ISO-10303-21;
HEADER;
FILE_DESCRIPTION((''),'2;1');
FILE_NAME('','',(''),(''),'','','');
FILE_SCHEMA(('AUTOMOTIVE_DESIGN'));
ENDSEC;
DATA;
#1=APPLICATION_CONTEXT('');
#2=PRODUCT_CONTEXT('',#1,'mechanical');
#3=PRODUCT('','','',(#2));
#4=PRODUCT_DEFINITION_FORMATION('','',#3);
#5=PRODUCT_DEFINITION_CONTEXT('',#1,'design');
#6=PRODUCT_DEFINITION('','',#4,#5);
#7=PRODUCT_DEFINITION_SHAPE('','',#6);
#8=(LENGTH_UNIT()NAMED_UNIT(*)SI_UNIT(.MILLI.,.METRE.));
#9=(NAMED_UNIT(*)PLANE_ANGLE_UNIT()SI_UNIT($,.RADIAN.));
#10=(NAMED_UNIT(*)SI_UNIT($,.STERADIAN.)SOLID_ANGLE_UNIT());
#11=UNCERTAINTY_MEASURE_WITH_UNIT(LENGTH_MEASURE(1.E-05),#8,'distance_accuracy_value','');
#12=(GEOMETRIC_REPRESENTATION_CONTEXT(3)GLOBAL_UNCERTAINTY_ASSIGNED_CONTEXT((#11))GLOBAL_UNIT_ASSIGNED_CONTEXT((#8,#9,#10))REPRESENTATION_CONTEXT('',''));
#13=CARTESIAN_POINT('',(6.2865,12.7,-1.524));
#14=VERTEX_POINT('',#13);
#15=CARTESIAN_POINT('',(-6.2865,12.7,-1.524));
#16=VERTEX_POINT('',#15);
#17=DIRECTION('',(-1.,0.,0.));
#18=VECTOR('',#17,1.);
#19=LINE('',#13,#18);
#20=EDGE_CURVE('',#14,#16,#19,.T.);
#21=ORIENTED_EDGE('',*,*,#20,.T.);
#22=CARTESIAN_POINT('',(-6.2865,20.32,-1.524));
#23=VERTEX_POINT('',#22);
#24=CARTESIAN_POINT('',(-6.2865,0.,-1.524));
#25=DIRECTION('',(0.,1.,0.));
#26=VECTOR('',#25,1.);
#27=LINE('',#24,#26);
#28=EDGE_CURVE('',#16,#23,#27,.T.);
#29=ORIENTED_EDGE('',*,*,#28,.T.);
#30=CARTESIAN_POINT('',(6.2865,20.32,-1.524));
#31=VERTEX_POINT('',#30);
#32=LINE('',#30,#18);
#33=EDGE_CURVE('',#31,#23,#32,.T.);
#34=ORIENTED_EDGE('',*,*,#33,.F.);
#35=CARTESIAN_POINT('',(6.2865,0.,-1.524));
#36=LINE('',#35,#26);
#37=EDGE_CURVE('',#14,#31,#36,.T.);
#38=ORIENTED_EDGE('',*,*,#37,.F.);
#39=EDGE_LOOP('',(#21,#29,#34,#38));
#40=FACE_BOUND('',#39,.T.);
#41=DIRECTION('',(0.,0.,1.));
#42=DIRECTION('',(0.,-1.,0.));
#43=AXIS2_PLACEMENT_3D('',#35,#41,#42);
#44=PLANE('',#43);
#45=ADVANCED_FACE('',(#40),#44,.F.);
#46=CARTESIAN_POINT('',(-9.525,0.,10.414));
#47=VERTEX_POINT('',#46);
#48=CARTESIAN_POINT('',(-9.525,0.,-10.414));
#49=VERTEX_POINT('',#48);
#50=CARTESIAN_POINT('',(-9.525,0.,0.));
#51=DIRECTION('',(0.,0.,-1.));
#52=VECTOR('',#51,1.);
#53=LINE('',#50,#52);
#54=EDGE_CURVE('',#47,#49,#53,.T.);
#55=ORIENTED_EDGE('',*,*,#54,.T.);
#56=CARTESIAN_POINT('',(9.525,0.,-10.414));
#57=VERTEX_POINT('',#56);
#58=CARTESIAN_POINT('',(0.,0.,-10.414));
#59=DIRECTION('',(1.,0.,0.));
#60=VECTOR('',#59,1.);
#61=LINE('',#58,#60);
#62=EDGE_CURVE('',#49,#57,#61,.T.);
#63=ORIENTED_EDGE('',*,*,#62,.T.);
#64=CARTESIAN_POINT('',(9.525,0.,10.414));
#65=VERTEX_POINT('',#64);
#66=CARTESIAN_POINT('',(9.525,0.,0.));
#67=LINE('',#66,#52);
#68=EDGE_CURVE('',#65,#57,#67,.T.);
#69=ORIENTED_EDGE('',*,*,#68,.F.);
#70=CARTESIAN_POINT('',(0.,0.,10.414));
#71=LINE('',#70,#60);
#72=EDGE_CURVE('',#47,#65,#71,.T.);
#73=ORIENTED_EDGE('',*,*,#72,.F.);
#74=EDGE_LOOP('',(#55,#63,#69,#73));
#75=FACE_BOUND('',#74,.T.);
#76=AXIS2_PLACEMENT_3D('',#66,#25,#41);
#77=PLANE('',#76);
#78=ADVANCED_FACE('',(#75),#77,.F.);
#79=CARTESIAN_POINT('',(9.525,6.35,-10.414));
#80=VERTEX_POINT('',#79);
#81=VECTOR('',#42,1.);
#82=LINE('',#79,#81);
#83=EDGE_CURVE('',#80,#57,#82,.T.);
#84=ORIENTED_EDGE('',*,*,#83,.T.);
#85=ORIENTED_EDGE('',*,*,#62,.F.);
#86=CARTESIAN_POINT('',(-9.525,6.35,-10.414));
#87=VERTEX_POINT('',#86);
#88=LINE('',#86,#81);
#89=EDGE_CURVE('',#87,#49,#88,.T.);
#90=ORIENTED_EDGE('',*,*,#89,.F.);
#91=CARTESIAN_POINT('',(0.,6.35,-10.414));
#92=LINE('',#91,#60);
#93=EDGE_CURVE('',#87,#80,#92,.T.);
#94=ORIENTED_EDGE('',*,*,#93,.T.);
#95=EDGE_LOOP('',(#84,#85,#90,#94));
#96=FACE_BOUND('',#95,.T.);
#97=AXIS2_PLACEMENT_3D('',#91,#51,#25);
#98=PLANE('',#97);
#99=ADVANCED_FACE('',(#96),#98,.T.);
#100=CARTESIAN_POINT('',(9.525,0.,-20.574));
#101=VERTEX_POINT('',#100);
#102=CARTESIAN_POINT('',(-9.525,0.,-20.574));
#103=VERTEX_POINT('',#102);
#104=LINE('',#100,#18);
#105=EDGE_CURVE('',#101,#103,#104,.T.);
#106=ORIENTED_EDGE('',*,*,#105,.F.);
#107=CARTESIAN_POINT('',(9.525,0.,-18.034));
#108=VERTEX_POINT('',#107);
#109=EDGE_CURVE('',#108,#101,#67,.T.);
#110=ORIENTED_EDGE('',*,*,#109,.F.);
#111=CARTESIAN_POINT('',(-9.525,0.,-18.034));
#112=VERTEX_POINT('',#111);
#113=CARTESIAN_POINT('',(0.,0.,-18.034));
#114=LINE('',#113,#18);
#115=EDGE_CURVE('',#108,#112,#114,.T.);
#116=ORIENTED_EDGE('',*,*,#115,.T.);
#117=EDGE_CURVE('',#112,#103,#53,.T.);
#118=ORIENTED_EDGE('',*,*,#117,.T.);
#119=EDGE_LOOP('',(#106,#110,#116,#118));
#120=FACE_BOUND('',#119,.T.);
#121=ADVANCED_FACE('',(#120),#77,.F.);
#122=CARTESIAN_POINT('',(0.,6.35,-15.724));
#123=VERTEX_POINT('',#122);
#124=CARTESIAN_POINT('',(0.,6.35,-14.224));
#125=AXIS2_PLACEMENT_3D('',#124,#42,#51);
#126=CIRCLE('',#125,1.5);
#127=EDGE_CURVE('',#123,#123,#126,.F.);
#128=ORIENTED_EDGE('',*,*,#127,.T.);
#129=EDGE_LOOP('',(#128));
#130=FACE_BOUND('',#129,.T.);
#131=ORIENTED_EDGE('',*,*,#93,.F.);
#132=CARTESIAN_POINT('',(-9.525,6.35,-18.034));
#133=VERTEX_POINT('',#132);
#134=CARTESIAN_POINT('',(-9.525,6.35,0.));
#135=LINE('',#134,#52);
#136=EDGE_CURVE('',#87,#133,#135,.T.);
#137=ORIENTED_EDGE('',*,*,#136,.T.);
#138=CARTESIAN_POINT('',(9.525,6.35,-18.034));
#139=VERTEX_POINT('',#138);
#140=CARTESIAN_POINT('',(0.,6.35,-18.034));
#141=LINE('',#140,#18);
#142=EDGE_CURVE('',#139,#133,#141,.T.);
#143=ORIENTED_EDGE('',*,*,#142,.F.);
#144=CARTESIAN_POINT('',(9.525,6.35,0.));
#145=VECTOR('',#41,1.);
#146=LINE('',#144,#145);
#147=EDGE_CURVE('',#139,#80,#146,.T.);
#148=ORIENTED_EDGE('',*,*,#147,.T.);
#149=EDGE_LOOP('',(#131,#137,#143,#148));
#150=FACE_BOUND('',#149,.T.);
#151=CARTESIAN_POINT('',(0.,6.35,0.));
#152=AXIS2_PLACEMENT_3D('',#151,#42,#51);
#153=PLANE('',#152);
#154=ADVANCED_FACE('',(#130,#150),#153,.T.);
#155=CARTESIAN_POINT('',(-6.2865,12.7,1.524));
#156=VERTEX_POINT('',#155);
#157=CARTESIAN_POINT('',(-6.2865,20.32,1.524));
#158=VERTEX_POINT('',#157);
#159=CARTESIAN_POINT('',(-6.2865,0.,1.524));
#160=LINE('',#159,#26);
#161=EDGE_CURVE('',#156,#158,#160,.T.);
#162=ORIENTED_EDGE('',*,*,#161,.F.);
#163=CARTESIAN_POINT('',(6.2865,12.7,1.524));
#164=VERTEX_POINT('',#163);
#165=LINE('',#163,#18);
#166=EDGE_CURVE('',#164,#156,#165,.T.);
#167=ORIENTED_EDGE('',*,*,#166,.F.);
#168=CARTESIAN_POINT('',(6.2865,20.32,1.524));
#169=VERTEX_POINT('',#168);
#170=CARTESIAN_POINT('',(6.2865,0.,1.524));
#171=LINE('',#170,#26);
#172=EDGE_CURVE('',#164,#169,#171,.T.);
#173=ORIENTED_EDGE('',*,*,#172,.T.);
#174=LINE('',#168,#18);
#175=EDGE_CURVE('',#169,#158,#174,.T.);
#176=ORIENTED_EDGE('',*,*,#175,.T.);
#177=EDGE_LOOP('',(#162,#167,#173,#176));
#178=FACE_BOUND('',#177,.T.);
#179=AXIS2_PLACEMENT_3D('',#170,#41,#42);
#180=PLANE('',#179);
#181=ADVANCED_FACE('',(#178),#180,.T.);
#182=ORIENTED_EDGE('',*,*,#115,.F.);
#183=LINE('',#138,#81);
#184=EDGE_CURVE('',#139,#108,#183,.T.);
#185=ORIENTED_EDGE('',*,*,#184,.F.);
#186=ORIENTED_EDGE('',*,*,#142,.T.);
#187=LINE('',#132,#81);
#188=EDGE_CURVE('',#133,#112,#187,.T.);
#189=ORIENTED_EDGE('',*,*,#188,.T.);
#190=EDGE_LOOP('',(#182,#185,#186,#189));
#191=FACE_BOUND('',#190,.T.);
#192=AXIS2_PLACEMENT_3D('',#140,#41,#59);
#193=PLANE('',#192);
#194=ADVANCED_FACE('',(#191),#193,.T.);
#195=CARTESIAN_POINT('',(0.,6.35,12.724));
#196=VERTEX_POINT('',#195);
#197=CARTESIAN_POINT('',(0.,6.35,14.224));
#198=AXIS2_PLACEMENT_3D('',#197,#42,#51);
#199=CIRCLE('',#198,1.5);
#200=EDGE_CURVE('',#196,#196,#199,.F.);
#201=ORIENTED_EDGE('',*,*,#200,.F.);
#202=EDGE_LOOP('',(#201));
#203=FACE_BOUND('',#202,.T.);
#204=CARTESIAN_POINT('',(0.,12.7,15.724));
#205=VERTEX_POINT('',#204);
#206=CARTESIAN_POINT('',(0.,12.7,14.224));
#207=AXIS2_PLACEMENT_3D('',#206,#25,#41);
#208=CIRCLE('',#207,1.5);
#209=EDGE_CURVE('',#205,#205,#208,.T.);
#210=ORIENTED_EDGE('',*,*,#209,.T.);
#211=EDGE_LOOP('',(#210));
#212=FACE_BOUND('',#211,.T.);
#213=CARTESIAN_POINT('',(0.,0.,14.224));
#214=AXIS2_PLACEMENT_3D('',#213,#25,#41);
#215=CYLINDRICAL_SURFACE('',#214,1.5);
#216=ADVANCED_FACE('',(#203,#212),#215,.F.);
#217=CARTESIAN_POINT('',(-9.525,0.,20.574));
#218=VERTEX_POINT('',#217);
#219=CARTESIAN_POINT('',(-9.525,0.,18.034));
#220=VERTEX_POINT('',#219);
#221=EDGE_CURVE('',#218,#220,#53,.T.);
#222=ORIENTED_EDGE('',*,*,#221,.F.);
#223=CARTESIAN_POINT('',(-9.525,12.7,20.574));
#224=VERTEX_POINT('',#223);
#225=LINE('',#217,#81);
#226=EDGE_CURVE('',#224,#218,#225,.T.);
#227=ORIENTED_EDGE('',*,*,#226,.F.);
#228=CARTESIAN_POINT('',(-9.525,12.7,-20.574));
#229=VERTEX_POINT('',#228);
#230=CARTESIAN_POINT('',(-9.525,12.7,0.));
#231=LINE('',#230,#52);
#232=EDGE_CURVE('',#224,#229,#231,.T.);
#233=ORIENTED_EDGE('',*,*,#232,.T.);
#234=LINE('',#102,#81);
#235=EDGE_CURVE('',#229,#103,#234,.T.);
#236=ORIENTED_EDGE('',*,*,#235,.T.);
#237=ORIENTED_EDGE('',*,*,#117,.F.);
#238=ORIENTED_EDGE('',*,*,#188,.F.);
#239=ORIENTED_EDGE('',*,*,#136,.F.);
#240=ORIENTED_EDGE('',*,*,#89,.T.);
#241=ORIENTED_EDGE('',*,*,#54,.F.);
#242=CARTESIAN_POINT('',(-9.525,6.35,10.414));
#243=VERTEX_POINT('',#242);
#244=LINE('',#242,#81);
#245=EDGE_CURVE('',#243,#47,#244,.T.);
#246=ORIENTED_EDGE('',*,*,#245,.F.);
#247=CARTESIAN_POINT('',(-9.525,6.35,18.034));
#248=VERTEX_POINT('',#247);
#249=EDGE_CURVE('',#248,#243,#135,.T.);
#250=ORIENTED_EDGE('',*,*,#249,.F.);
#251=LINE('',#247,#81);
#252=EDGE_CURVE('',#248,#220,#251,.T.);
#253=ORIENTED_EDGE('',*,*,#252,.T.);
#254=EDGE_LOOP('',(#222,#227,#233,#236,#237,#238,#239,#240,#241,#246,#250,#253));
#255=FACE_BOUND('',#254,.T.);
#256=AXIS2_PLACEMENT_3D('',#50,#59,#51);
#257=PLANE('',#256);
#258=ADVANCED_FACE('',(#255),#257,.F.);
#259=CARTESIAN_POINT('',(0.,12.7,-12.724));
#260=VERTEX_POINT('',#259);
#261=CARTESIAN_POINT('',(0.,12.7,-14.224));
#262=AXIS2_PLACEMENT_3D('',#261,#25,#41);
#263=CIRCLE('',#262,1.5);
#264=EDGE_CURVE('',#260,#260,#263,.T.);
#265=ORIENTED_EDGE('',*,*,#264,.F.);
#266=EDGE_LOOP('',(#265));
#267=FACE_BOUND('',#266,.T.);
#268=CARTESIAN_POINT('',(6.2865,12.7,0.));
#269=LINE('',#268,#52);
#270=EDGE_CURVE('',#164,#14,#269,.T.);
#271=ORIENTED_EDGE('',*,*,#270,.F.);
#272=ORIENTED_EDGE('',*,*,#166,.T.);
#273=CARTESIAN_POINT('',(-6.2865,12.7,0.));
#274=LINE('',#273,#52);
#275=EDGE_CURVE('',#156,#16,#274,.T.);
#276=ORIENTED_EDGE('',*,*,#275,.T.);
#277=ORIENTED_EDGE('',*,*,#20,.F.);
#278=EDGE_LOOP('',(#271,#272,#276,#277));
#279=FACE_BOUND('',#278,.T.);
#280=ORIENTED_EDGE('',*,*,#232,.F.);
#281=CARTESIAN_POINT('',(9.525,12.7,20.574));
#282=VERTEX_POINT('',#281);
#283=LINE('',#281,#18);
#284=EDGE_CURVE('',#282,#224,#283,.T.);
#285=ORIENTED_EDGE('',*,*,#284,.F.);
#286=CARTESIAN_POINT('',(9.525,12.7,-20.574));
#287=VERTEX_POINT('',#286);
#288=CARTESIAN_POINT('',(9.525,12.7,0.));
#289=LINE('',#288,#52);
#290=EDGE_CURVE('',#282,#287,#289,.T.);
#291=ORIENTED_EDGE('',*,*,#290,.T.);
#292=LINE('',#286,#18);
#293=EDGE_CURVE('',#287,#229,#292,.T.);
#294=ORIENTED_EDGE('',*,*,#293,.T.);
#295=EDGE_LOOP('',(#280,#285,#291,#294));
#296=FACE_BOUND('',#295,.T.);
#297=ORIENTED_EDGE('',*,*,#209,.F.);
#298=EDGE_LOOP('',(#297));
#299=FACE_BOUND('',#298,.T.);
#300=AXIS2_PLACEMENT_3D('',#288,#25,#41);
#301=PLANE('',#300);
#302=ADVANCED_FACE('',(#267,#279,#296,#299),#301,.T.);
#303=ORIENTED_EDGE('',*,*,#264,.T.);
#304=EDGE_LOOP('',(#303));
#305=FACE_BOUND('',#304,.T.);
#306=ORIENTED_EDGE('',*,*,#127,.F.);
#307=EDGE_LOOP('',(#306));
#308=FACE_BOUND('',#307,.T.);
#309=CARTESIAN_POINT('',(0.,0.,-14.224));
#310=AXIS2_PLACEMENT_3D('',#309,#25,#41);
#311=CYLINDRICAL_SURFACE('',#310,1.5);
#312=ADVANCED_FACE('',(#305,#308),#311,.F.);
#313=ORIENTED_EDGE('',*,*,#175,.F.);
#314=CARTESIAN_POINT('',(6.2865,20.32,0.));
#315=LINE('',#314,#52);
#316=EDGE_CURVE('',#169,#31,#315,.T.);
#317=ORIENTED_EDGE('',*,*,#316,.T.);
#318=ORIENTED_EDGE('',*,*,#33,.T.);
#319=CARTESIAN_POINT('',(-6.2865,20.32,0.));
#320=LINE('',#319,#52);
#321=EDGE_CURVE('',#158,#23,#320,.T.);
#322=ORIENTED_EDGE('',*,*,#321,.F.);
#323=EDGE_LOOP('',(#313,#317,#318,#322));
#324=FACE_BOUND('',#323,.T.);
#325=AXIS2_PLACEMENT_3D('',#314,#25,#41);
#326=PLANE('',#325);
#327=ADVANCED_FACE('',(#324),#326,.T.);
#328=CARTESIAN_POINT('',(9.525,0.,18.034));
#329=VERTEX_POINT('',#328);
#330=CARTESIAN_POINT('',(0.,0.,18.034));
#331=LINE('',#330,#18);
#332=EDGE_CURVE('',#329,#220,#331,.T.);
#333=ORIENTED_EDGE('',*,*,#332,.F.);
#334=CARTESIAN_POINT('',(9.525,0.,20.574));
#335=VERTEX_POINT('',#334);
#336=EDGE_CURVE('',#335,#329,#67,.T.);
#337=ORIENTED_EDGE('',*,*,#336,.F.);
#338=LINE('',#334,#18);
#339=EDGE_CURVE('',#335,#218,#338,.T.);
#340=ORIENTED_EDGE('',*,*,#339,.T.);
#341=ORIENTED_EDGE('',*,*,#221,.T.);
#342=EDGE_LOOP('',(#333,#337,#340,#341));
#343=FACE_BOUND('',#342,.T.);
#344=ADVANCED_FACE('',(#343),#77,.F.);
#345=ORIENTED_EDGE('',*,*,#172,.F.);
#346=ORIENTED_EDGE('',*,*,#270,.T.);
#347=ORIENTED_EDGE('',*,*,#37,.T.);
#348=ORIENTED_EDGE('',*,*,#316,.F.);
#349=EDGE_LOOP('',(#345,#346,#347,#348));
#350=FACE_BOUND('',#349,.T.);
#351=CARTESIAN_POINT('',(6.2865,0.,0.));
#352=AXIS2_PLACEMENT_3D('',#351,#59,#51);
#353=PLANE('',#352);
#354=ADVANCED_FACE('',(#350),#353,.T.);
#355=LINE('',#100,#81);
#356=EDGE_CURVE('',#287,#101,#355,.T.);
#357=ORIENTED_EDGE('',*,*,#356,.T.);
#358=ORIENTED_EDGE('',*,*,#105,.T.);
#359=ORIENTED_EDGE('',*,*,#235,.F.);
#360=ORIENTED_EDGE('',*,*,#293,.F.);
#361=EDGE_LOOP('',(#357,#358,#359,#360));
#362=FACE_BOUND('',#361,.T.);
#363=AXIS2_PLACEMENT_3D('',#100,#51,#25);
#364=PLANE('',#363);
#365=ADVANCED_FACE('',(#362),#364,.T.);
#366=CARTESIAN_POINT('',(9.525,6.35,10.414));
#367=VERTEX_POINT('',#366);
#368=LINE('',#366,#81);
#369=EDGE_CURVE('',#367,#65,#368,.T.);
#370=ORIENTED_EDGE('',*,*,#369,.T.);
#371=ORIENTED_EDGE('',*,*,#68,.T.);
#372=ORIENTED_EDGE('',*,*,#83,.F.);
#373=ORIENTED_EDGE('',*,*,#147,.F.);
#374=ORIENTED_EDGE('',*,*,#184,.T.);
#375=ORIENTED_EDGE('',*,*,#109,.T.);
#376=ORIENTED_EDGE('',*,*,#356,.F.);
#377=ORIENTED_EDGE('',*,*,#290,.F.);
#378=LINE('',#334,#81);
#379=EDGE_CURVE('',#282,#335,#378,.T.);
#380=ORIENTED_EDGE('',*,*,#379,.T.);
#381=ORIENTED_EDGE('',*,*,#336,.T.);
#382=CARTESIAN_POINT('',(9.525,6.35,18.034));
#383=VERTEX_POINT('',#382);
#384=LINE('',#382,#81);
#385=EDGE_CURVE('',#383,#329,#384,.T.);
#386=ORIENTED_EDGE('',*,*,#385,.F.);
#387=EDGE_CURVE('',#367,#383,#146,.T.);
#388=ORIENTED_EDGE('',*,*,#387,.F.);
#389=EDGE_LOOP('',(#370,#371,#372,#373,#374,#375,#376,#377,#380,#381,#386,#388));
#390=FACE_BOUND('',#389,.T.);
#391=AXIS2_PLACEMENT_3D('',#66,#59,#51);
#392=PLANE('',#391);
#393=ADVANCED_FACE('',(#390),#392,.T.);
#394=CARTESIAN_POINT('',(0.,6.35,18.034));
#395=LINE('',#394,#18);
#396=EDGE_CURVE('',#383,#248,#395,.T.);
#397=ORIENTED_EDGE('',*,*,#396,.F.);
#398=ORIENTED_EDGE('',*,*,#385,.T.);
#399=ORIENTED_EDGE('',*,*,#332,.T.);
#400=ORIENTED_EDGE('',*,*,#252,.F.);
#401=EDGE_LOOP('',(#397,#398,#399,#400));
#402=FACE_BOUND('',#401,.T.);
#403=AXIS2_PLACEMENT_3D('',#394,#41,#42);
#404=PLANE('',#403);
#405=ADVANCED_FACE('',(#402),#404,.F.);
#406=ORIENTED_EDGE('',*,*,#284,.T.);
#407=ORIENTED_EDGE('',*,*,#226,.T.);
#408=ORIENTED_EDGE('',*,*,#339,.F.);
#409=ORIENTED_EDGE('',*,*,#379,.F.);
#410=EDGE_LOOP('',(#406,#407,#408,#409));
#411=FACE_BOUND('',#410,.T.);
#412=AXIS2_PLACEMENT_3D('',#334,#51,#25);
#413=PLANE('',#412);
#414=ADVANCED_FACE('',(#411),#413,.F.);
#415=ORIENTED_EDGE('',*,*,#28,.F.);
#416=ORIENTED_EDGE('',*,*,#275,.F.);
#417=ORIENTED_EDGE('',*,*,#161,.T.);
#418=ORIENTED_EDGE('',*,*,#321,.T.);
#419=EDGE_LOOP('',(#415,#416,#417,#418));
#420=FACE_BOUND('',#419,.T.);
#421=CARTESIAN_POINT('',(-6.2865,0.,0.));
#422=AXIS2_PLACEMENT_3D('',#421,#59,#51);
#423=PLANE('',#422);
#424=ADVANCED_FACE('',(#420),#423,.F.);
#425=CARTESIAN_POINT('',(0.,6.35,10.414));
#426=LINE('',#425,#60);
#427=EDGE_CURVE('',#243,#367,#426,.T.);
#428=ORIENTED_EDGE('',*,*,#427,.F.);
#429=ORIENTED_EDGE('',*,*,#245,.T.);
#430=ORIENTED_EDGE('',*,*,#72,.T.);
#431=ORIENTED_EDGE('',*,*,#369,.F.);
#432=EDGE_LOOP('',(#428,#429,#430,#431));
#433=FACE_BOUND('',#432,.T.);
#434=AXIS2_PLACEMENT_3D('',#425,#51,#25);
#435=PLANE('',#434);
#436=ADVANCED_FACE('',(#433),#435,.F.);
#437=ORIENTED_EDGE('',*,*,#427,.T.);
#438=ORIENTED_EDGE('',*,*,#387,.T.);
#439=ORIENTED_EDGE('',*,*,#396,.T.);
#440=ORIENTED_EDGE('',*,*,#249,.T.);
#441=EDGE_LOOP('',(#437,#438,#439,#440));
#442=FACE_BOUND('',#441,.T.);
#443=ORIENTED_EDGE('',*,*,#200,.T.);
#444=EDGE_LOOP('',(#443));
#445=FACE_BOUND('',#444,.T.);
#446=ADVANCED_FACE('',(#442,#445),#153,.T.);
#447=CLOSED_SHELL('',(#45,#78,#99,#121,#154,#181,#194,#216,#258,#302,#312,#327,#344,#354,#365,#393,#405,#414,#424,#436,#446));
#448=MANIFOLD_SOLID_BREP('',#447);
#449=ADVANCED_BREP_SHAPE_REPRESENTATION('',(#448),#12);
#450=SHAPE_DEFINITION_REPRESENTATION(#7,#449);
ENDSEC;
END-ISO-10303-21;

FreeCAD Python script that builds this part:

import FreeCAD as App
import Part
import Sketcher
from FreeCAD import Vector
Q = App.Units.Quantity


def add_polygon(sketch, points):
    """Adds a closed chain of lines whose ends are joined by coincident constraints."""
    first, n = sketch.GeometryCount, len(points)
    for a, b in zip(points, points[1:] + points[:1]):
        sketch.addGeometry(Part.LineSegment(App.Vector(*a, 0), App.Vector(*b, 0)), False)
    for i in range(n):
        sketch.addConstraint(Sketcher.Constraint("Coincident", first + i, 2, first + (i + 1) % n, 1))

doc = App.newDocument("Part")
body = doc.addObject("PartDesign::Body", "Body")

# Sketch on YZ plane
sketch1 = body.newObject("Sketcher::SketchObject", "Sketch")
sketch1.AttachmentSupport = (doc.getObject("YZ_Plane"), [""])
sketch1.MapMode = "FlatFace"
add_polygon(sketch1, [(12.7, 20.574), (0, 20.574), (0, -20.574), (12.7, -20.574)])  # lines 0-3
sketch1.addConstraint([
    Sketcher.Constraint("Horizontal", 0),
    Sketcher.Constraint("Vertical", 1),
    Sketcher.Constraint("Horizontal", 2),
    Sketcher.Constraint("Vertical", 3),
    Sketcher.Constraint("Symmetric", 0, 2, 1, 2, -1, 1),
    Sketcher.Constraint("DistanceX", 0, 2, 0, 1, Q("0.5 in")),
    Sketcher.Constraint("DistanceY", 1, 2, 1, 1, Q("1.62 in")),
])
pad1 = body.newObject("PartDesign::Pad", "Pad")
pad1.Profile = sketch1
pad1.Length = Q("0.75 in")
pad1.Midplane = True

# Sketch on YZ plane
sketch2 = body.newObject("Sketcher::SketchObject", "Sketch001")
sketch2.AttachmentSupport = (doc.getObject("YZ_Plane"), [""])
sketch2.MapMode = "FlatFace"
add_polygon(sketch2, [(20.32, 1.524), (12.7, 1.524), (12.7, -1.524), (20.32, -1.524)])  # lines 0-3
sketch2.addConstraint([
    Sketcher.Constraint("Horizontal", 0),
    Sketcher.Constraint("Vertical", 1),
    Sketcher.Constraint("Horizontal", 2),
    Sketcher.Constraint("Vertical", 3),
    Sketcher.Constraint("DistanceX", 0, 2, 0, 1, Q("0.3 in")),
    Sketcher.Constraint("DistanceY", 1, 2, 1, 1, Q("0.12 in")),
    Sketcher.Constraint("DistanceX", -1, 1, 0, 2, Q("0.5 in")),
    Sketcher.Constraint("DistanceY", -1, 1, 0, 2, Q("0.06 in")),
])
pad2 = body.newObject("PartDesign::Pad", "Pad001")
pad2.Profile = sketch2
pad2.Length = Q("0.495 in")
pad2.Midplane = True

# Sketch on XZ plane
sketch3 = body.newObject("Sketcher::SketchObject", "Sketch002")
sketch3.AttachmentSupport = (doc.getObject("XZ_Plane"), [""])
sketch3.MapMode = "FlatFace"
sketch3.AttachmentOffset = App.Placement(Vector(0, 0, -0.5 * 25.4), App.Rotation())
sketch3.addGeometry([
    Part.Circle(Vector(0, 14.224, 0), Vector(0, 0, 1), 1.5),
    Part.Circle(Vector(0, -14.224, 0), Vector(0, 0, 1), 1.5),
], False)
sketch3.addConstraint([
    Sketcher.Constraint("Equal", 0, 1),
    Sketcher.Constraint("Symmetric", 0, 3, 1, 3, -1, 1),
    Sketcher.Constraint("PointOnObject", 0, 3, -2),
    Sketcher.Constraint("Diameter", 0, 3.0),
    Sketcher.Constraint("DistanceY", -1, 1, 0, 3, Q("0.56 in")),
])
pocket1 = body.newObject("PartDesign::Pocket", "Pocket")
pocket1.Profile = sketch3
pocket1.Type = "ThroughAll"
pocket1.Reversed = True

# Sketch on XZ plane
sketch4 = body.newObject("Sketcher::SketchObject", "Sketch003")
sketch4.AttachmentSupport = (doc.getObject("XZ_Plane"), [""])
sketch4.MapMode = "FlatFace"
add_polygon(sketch4, [(-9.525, -18.034), (9.525, -18.034), (9.525, -10.414), (-9.525, -10.414)])  # lines 0-3
sketch4.addGeometry(Part.Circle(Vector(0, -14.224, 0), Vector(0, 0, 1), 1.5), False)  # 4
add_polygon(sketch4, [(9.525, 10.414), (9.525, 18.034), (-9.525, 18.034), (-9.525, 10.414)])  # lines 5-8
sketch4.addGeometry(Part.Circle(Vector(0, 14.224, 0), Vector(0, 0, 1), 1.5), False)  # 9
sketch4.addConstraint([
    Sketcher.Constraint("Horizontal", 0),
    Sketcher.Constraint("Vertical", 1),
    Sketcher.Constraint("Horizontal", 2),
    Sketcher.Constraint("Vertical", 3),
    Sketcher.Constraint("Vertical", 5),
    Sketcher.Constraint("Horizontal", 6),
    Sketcher.Constraint("Vertical", 7),
    Sketcher.Constraint("Horizontal", 8),
    Sketcher.Constraint("Equal", 4, 9),
    Sketcher.Constraint("Symmetric", 4, 3, 9, 3, -1, 1),
    Sketcher.Constraint("Symmetric", 3, 2, 5, 2, -1, 1),
    Sketcher.Constraint("Symmetric", 1, 2, 7, 2, -1, 1),
    Sketcher.Constraint("PointOnObject", 4, 3, -2),
    Sketcher.Constraint("Vertical", 1, 2, 5, 2),
    Sketcher.Constraint("DistanceY", 1, 1, 1, 2, Q("0.3 in")),
    Sketcher.Constraint("DistanceX", 0, 1, 0, 2, Q("0.75 in")),
    Sketcher.Constraint("Diameter", 4, 3.0),
    Sketcher.Constraint("DistanceY", 4, 3, -1, 1, Q("0.56 in")),
    Sketcher.Constraint("DistanceY", 0, 2, -1, 1, Q("0.71 in")),
])
pocket2 = body.newObject("PartDesign::Pocket", "Pocket001")
pocket2.Profile = sketch4
pocket2.Length = Q("0.25 in")

doc.recompute()
